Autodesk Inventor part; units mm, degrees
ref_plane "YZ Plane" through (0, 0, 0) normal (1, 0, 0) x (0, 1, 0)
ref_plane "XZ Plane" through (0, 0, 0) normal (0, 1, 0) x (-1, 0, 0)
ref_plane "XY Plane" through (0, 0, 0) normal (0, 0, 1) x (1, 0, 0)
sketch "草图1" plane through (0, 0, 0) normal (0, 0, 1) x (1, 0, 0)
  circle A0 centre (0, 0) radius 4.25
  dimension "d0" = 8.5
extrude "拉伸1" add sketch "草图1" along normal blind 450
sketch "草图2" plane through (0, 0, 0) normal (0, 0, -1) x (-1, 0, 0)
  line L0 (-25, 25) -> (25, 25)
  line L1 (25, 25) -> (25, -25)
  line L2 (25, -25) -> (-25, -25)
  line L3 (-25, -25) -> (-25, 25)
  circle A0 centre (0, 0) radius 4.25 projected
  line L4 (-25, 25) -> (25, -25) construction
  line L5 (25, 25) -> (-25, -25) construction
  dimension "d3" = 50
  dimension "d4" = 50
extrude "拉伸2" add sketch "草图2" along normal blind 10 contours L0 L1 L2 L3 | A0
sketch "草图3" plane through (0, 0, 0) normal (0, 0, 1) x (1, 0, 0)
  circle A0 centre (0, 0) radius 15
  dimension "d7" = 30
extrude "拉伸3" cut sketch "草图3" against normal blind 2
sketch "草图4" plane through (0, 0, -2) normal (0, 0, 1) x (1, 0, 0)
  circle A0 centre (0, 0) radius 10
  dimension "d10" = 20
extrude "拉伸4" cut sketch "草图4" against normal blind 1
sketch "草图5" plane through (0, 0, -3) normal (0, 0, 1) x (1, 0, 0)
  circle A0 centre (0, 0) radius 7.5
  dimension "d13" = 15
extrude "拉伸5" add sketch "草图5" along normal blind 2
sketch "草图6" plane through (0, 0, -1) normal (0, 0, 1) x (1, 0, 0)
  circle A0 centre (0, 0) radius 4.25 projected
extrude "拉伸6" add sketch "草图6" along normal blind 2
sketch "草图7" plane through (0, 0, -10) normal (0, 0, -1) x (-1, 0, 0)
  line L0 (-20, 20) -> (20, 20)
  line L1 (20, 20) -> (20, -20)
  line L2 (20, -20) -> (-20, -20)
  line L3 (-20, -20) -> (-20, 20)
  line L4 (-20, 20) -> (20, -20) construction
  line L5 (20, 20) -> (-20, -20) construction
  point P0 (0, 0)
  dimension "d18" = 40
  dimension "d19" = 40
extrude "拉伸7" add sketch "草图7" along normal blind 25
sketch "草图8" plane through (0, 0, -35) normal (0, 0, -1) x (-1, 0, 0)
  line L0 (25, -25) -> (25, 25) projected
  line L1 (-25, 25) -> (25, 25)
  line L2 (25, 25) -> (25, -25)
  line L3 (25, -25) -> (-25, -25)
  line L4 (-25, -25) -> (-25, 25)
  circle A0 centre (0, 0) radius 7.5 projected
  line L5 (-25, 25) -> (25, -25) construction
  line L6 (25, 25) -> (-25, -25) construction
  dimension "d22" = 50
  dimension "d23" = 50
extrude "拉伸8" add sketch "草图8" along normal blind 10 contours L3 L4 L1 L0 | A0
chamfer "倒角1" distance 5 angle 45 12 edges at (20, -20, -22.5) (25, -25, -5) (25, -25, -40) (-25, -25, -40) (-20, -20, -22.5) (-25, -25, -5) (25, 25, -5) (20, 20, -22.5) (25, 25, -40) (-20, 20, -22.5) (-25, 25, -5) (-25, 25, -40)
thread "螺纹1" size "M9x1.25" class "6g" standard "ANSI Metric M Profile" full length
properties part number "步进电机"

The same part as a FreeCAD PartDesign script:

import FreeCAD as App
import Part
import Sketcher

V = App.Vector
Q = App.Units.Quantity


def edges_at(feature, points):
    """Names of the edges that pass closest to the given points."""
    edges = feature.Shape.Edges
    near = lambda p: min(range(len(edges)), key=lambda i: edges[i].distToShape(Part.Vertex(*p))[0])
    return sorted({f"Edge{near(p) + 1}" for p in points})


def add_polygon(sketch, points):
    """Adds a closed chain of lines whose ends are joined by coincident constraints."""
    first, n = sketch.GeometryCount, len(points)
    for a, b in zip(points, points[1:] + points[:1]):
        sketch.addGeometry(Part.LineSegment(App.Vector(*a, 0), App.Vector(*b, 0)), False)
    for i in range(n):
        sketch.addConstraint(Sketcher.Constraint("Coincident", first + i, 2, first + (i + 1) % n, 1))

doc = App.newDocument("Part")
body = doc.addObject("PartDesign::Body", "Body")
body.AllowCompound = True

# Sketch on XY plane
sketch1 = body.newObject("Sketcher::SketchObject", "Sketch")
sketch1.AttachmentSupport = (doc.getObject("XY_Plane"), [""])
sketch1.MapMode = "FlatFace"
sketch1.addGeometry(Part.Circle(V(0, 0, 0), V(0, 0, 1), 4.2), False)
sketch1.addConstraint([
    Sketcher.Constraint("Coincident", 0, 3, -1, 1),
    Sketcher.Constraint("Diameter", 0, Q("8.5 mm")),
])
pad1 = body.newObject("PartDesign::Pad", "Pad")
pad1.Profile = sketch1
pad1.Length = 450

# Sketch on XY plane
sketch2 = body.newObject("Sketcher::SketchObject", "Sketch001")
sketch2.AttachmentSupport = (doc.getObject("XY_Plane"), [""])
sketch2.MapMode = "FlatFace"
add_polygon(sketch2, [(-25, 25), (25, 25), (25, -25), (-25, -25)])  # lines 0-3
sketch2.addConstraint([
    Sketcher.Constraint("Horizontal", 0),
    Sketcher.Constraint("Vertical", 1),
    Sketcher.Constraint("Horizontal", 2),
    Sketcher.Constraint("Vertical", 3),
    Sketcher.Constraint("Symmetric", 0, 2, 2, 2, -1, 1),
    Sketcher.Constraint("Equal", 2, 1),
    Sketcher.Constraint("DistanceX", 0, 1, 0, 2, Q("50 mm")),
])
pad2 = body.newObject("PartDesign::Pad", "Pad001")
pad2.Profile = sketch2
pad2.Length = 10
pad2.Reversed = True

# Sketch on XY plane
sketch3 = body.newObject("Sketcher::SketchObject", "Sketch002")
sketch3.AttachmentSupport = (doc.getObject("XY_Plane"), [""])
sketch3.MapMode = "FlatFace"
sketch3.addGeometry(Part.Circle(V(0, 0, 0), V(0, 0, 1), 15), False)
sketch3.addConstraint([
    Sketcher.Constraint("Coincident", 0, 3, -1, 1),
    Sketcher.Constraint("Diameter", 0, Q("30 mm")),
])
pocket1 = body.newObject("PartDesign::Pocket", "Pocket")
pocket1.Profile = sketch3
pocket1.Length = 2

# Sketch on XY plane
sketch4 = body.newObject("Sketcher::SketchObject", "Sketch003")
sketch4.AttachmentSupport = (doc.getObject("XY_Plane"), [""])
sketch4.MapMode = "FlatFace"
sketch4.AttachmentOffset = App.Placement(V(0, 0, -2), App.Rotation())
sketch4.addGeometry(Part.Circle(V(0, 0, 0), V(0, 0, 1), 10), False)
sketch4.addConstraint([
    Sketcher.Constraint("Coincident", 0, 3, -1, 1),
    Sketcher.Constraint("Diameter", 0, Q("20 mm")),
])
pocket2 = body.newObject("PartDesign::Pocket", "Pocket001")
pocket2.Profile = sketch4
pocket2.Length = 1

# Sketch on XY plane
sketch5 = body.newObject("Sketcher::SketchObject", "Sketch004")
sketch5.AttachmentSupport = (doc.getObject("XY_Plane"), [""])
sketch5.MapMode = "FlatFace"
sketch5.AttachmentOffset = App.Placement(V(0, 0, -3), App.Rotation())
sketch5.addGeometry(Part.Circle(V(0, 0, 0), V(0, 0, 1), 8), False)
sketch5.addConstraint([
    Sketcher.Constraint("Coincident", 0, 3, -1, 1),
    Sketcher.Constraint("Diameter", 0, Q("15 mm")),
])
pad3 = body.newObject("PartDesign::Pad", "Pad002")
pad3.Profile = sketch5
pad3.Length = 2

# Sketch on XY plane
sketch6 = body.newObject("Sketcher::SketchObject", "Sketch005")
sketch6.AttachmentSupport = (doc.getObject("XY_Plane"), [""])
sketch6.MapMode = "FlatFace"
sketch6.AttachmentOffset = App.Placement(V(0, 0, -1), App.Rotation())
sketch6.addGeometry(Part.Circle(V(0, 0, 0), V(0, 0, 1), 4.2), False)
sketch6.addConstraint([
    Sketcher.Constraint("Coincident", 0, 3, -1, 1),
    Sketcher.Constraint("Diameter", 0, Q("8.5 mm")),
])
pad4 = body.newObject("PartDesign::Pad", "Pad003")
pad4.Profile = sketch6
pad4.Length = 2

# Sketch on XY plane
sketch7 = body.newObject("Sketcher::SketchObject", "Sketch006")
sketch7.AttachmentSupport = (doc.getObject("XY_Plane"), [""])
sketch7.MapMode = "FlatFace"
sketch7.AttachmentOffset = App.Placement(V(0, 0, -10), App.Rotation())
add_polygon(sketch7, [(-20, 20), (20, 20), (20, -20), (-20, -20)])  # lines 0-3
sketch7.addConstraint([
    Sketcher.Constraint("Horizontal", 0),
    Sketcher.Constraint("Vertical", 1),
    Sketcher.Constraint("Horizontal", 2),
    Sketcher.Constraint("Vertical", 3),
    Sketcher.Constraint("Symmetric", 0, 2, 2, 2, -1, 1),
    Sketcher.Constraint("Equal", 2, 1),
    Sketcher.Constraint("DistanceX", 0, 1, 0, 2, Q("40 mm")),
])
pad5 = body.newObject("PartDesign::Pad", "Pad004")
pad5.Profile = sketch7
pad5.Length = 25
pad5.Reversed = True

# Sketch on XY plane
sketch8 = body.newObject("Sketcher::SketchObject", "Sketch007")
sketch8.AttachmentSupport = (doc.getObject("XY_Plane"), [""])
sketch8.MapMode = "FlatFace"
sketch8.AttachmentOffset = App.Placement(V(0, 0, -35), App.Rotation())
add_polygon(sketch8, [(25, -25), (-25, -25), (-25, 25), (25, 25)])  # lines 0-3
sketch8.addConstraint([
    Sketcher.Constraint("Horizontal", 0),
    Sketcher.Constraint("Vertical", 1),
    Sketcher.Constraint("Horizontal", 2),
    Sketcher.Constraint("Vertical", 3),
    Sketcher.Constraint("Symmetric", 0, 2, 2, 2, -1, 1),
    Sketcher.Constraint("Equal", 2, 1),
    Sketcher.Constraint("DistanceX", 0, 2, 0, 1, Q("50 mm")),
])
pad6 = body.newObject("PartDesign::Pad", "Pad005")
pad6.Profile = sketch8
pad6.Length = 10
pad6.Reversed = True
doc.recompute()

chamfer = body.newObject("PartDesign::Chamfer", "Chamfer")
chamfer.Base = (pad6, edges_at(pad6, [
    (20, -20, -22.5),
    (25, -25, -5),
    (25, -25, -40),
    (-25, -25, -40),
    (-20, -20, -22.5),
    (-25, -25, -5),
    (25, 25, -5),
    (20, 20, -22.5),
    (25, 25, -40),
    (-20, 20, -22.5),
    (-25, 25, -5),
    (-25, 25, -40),
]))
chamfer.Size = 5

doc.recompute()
